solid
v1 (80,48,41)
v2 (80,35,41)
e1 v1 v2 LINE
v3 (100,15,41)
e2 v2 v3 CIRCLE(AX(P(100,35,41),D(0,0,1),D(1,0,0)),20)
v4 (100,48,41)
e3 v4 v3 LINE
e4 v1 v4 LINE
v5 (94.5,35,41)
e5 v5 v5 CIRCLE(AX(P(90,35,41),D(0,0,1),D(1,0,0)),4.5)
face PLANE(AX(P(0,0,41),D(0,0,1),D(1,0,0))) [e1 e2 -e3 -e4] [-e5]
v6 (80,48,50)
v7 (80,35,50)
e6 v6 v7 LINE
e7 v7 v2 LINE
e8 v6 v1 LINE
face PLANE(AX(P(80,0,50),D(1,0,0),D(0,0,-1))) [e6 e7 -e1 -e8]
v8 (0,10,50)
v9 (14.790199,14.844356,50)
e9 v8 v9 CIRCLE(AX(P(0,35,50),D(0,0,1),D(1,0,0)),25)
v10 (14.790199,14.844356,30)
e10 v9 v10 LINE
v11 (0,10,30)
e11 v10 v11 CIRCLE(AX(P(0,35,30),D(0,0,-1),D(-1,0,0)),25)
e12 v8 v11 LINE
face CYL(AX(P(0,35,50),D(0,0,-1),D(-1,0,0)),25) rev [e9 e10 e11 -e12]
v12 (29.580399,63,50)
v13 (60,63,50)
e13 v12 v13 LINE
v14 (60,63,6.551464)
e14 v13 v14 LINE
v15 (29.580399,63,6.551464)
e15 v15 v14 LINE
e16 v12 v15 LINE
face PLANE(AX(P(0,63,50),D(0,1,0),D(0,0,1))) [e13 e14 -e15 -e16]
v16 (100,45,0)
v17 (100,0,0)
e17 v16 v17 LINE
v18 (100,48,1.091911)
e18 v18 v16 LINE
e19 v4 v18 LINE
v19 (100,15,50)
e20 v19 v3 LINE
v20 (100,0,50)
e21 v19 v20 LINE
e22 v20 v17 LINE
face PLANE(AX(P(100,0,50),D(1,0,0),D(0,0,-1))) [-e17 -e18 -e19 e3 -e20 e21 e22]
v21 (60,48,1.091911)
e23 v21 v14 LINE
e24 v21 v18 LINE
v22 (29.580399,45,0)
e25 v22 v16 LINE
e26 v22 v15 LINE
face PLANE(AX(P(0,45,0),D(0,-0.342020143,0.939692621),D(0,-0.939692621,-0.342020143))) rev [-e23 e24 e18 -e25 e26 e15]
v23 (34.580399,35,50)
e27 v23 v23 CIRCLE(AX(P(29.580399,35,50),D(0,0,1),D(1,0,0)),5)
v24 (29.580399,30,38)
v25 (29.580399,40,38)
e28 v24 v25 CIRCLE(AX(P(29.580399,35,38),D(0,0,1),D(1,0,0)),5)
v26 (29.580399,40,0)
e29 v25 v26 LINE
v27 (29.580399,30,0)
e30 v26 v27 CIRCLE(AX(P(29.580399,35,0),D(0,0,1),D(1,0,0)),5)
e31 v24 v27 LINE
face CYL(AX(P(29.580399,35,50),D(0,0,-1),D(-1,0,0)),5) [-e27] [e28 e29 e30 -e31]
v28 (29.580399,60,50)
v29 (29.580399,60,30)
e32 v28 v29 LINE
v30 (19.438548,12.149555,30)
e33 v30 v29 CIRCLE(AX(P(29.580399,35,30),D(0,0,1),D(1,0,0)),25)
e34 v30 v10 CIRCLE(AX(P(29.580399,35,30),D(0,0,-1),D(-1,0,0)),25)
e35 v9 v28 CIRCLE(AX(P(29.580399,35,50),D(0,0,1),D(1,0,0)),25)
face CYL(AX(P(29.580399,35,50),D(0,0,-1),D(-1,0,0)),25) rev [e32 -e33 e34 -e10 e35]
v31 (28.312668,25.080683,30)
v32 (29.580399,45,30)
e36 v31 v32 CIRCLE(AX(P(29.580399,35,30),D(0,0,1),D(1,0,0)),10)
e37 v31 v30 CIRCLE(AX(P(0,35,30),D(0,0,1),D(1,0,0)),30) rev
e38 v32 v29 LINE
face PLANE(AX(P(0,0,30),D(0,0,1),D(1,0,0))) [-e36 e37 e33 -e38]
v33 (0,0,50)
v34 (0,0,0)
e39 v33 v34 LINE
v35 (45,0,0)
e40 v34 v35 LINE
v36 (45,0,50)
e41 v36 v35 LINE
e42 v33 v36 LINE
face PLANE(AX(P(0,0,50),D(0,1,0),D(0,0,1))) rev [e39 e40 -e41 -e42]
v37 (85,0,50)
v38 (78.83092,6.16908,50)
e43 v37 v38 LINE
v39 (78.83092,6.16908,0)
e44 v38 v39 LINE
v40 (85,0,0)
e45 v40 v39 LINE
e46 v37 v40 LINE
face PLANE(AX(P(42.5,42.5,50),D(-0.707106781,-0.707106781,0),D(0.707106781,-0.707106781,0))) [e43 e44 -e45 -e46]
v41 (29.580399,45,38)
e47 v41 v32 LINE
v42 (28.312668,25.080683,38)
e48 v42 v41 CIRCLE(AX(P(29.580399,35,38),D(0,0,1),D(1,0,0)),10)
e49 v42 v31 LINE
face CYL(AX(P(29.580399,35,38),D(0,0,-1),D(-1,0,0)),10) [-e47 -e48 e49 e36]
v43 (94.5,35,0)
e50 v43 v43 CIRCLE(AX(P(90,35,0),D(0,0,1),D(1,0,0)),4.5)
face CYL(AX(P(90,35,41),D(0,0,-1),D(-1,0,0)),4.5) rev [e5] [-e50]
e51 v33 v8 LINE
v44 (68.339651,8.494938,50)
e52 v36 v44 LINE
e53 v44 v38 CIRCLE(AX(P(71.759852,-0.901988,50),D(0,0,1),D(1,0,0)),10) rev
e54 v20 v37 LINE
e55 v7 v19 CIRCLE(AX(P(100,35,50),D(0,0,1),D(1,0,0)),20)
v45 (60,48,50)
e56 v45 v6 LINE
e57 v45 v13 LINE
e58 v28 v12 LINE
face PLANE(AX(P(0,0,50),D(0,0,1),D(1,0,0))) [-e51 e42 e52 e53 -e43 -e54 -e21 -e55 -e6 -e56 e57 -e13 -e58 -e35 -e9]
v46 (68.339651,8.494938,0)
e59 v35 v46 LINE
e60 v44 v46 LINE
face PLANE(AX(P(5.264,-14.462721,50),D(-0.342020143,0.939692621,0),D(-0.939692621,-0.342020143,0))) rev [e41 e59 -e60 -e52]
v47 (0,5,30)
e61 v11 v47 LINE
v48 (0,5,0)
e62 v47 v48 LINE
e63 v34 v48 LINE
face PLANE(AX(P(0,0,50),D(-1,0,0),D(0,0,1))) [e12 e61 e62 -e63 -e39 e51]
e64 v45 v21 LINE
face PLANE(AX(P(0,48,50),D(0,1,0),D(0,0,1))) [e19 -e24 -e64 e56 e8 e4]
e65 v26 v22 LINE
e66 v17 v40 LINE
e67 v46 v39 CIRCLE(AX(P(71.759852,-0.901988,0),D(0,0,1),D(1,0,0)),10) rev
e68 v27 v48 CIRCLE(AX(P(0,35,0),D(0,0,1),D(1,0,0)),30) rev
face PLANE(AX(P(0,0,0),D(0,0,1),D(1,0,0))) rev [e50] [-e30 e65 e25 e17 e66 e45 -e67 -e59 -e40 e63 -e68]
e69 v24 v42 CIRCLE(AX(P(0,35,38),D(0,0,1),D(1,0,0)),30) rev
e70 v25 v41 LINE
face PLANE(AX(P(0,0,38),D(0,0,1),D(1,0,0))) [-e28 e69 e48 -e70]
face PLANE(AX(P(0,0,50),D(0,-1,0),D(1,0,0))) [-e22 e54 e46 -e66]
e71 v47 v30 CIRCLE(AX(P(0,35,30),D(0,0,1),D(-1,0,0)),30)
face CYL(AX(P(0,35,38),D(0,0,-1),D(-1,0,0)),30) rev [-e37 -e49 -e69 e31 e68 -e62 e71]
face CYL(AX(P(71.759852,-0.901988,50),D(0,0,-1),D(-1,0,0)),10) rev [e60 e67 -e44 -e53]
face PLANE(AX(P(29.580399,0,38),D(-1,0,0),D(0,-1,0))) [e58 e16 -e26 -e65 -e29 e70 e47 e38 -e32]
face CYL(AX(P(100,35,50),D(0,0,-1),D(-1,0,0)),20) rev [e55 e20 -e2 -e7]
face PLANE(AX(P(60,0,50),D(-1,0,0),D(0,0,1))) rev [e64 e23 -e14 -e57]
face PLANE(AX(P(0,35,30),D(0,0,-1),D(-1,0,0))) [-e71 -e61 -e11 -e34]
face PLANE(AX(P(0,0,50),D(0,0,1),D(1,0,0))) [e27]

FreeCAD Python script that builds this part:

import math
import FreeCAD as App
import Part
import Sketcher
Q = App.Units.Quantity


def add_polygon(sketch, points):
    """Adds a closed chain of lines whose ends are joined by coincident constraints."""
    first, n = sketch.GeometryCount, len(points)
    for a, b in zip(points, points[1:] + points[:1]):
        sketch.addGeometry(Part.LineSegment(App.Vector(*a, 0), App.Vector(*b, 0)), False)
    for i in range(n):
        sketch.addConstraint(Sketcher.Constraint("Coincident", first + i, 2, first + (i + 1) % n, 1))

doc = App.newDocument("Part")
body = doc.addObject("PartDesign::Body", "Body")

# Sketch on XY plane
sketch1 = body.newObject("Sketcher::SketchObject", "Sketch")
sketch1.AttachmentSupport = (doc.getObject("XY_Plane"), [""])
sketch1.MapMode = "FlatFace"
sketch1.addGeometry([
    Part.LineSegment(App.Vector(80, 48, 0), App.Vector(60, 48, 0)),  # 0
    Part.LineSegment(App.Vector(60, 48, 0), App.Vector(60, 63, 0)),  # 1
    Part.LineSegment(App.Vector(60, 63, 0), App.Vector(29.6, 63, 0)),  # 2
    Part.LineSegment(App.Vector(29.6, 63, 0), App.Vector(29.6, 60, 0)),  # 3
    Part.ArcOfCircle(Part.Circle(App.Vector(29.6, 35, 0), App.Vector(0, 0, 1), 25), math.radians(-114), math.radians(90)),  # 4
    Part.ArcOfCircle(Part.Circle(App.Vector(29.6, 35, 0), App.Vector(0, 0, 1), 25), math.radians(-126.27), math.radians(-113.93)),  # 5
    Part.ArcOfCircle(Part.Circle(App.Vector(0, 35, 0), App.Vector(0, 0, 1), 25), math.radians(-90), math.radians(-54)),  # 6
    Part.LineSegment(App.Vector(0, 10, 0), App.Vector(0, 0, 0)),  # 7
    Part.LineSegment(App.Vector(0, 0, 0), App.Vector(45, 0, 0)),  # 8
    Part.LineSegment(App.Vector(45, 0, 0), App.Vector(68.3, 8.5, 0)),  # 9
    Part.ArcOfCircle(Part.Circle(App.Vector(71.8, -0.9, 0), App.Vector(0, 0, 1), 10), math.radians(45), math.radians(110)),  # 10
    Part.LineSegment(App.Vector(78.8, 6.2, 0), App.Vector(85, 0, 0)),  # 11
    Part.LineSegment(App.Vector(85, 0, 0), App.Vector(100, 0, 0)),  # 12
    Part.LineSegment(App.Vector(100, 0, 0), App.Vector(100, 15, 0)),  # 13
    Part.ArcOfCircle(Part.Circle(App.Vector(100, 35, 0), App.Vector(0, 0, 1), 20), math.radians(180), math.radians(270)),  # 14
    Part.LineSegment(App.Vector(80, 35, 0), App.Vector(80, 48, 0)),  # 15
], False)
sketch1.addConstraint([
    Sketcher.Constraint("Coincident", 0, 2, 1, 1),
    Sketcher.Constraint("Coincident", 1, 2, 2, 1),
    Sketcher.Constraint("Coincident", 2, 2, 3, 1),
    Sketcher.Constraint("Coincident", 3, 2, 4, 2),
    Sketcher.Constraint("Tangent", 4, 1, 5, 2),
    Sketcher.Constraint("Coincident", 5, 1, 6, 2),
    Sketcher.Constraint("Coincident", 6, 1, 7, 1),
    Sketcher.Constraint("Coincident", 7, 2, 8, 1),
    Sketcher.Constraint("Coincident", 8, 2, 9, 1),
    Sketcher.Constraint("Tangent", 9, 2, 10, 2),
    Sketcher.Constraint("Tangent", 10, 1, 11, 1),
    Sketcher.Constraint("Coincident", 11, 2, 12, 1),
    Sketcher.Constraint("Coincident", 12, 2, 13, 1),
    Sketcher.Constraint("Coincident", 13, 2, 14, 2),
    Sketcher.Constraint("Tangent", 14, 1, 15, 1),
    Sketcher.Constraint("Coincident", 15, 2, 0, 1),
    Sketcher.Constraint("Horizontal", 0),
    Sketcher.Constraint("Vertical", 1),
    Sketcher.Constraint("Horizontal", 2),
    Sketcher.Constraint("Vertical", 3),
    Sketcher.Constraint("Vertical", 7),
    Sketcher.Constraint("Horizontal", 8),
    Sketcher.Constraint("Horizontal", 12),
    Sketcher.Constraint("Vertical", 13),
    Sketcher.Constraint("Vertical", 15),
    Sketcher.Constraint("Coincident", 7, 2, -1, 1),
    Sketcher.Constraint("Equal", 4, 5),
    Sketcher.Constraint("Equal", 5, 6),
    Sketcher.Constraint("PointOnObject", 6, 3, -2),
    Sketcher.Constraint("PointOnObject", 11, 2, -1),
    Sketcher.Constraint("Horizontal", 5, 3, 6, 3),
    Sketcher.Constraint("Horizontal", 6, 3, 14, 3),
    Sketcher.Constraint("Vertical", 5, 3, 2, 2),
    Sketcher.Constraint("Vertical", 14, 3, 12, 2),
    Sketcher.Constraint("Equal", 12, 1),
    Sketcher.Constraint("Equal", 1, 13),
    Sketcher.Constraint("Radius", 4, 25.0),
    Sketcher.Constraint("Radius", 10, 10.0),
    Sketcher.Constraint("Radius", 14, 20.0),
    Sketcher.Constraint("DistanceX", 0, 2, 0, 1, 20.0),
    Sketcher.Constraint("DistanceX", 8, 1, 8, 2, 45.0),
    Sketcher.Constraint("DistanceX", 12, 1, 12, 2, 15.0),
    Sketcher.Constraint("DistanceY", 3, 2, 3, 1, 3.0),
    Sketcher.Constraint("Angle", 9, Q("20 deg")),
    Sketcher.Constraint("Angle", 11, Q("-45 deg")),
    Sketcher.Constraint("DistanceX", -1, 1, 14, 3, 100.0),
    Sketcher.Constraint("DistanceX", 2, 2, 2, 1, 30.419601),
    Sketcher.Constraint("DistanceY", 4, 1, 5, 1, 2.694801),
])
pad1 = body.newObject("PartDesign::Pad", "Pad")
pad1.Profile = sketch1
pad1.Length = 50

# Sketch on XY plane
sketch2 = body.newObject("Sketcher::SketchObject", "Sketch001")
sketch2.AttachmentSupport = (doc.getObject("XY_Plane"), [""])
sketch2.MapMode = "FlatFace"
sketch2.addGeometry([
    Part.LineSegment(App.Vector(100, 48, 0), App.Vector(80, 48, 0)),  # 0
    Part.LineSegment(App.Vector(80, 48, 0), App.Vector(80, 35, 0)),  # 1
    Part.ArcOfCircle(Part.Circle(App.Vector(100, 35, 0), App.Vector(0, 0, 1), 20), math.radians(180), math.radians(270)),  # 2
    Part.LineSegment(App.Vector(100, 15, 0), App.Vector(100, 48, 0)),  # 3
    Part.Circle(App.Vector(90, 35, 0), App.Vector(0, 0, 1), 4.5),  # 4
], False)
sketch2.addConstraint([
    Sketcher.Constraint("Coincident", 0, 2, 1, 1),
    Sketcher.Constraint("Tangent", 1, 2, 2, 1),
    Sketcher.Constraint("Coincident", 2, 2, 3, 1),
    Sketcher.Constraint("Coincident", 3, 2, 0, 1),
    Sketcher.Constraint("Horizontal", 0),
    Sketcher.Constraint("Vertical", 1),
    Sketcher.Constraint("Vertical", 3),
    Sketcher.Constraint("Horizontal", 2, 3, 4, 3),
    Sketcher.Constraint("Diameter", 4, 9.0),
    Sketcher.Constraint("Radius", 2, 20.0),
    Sketcher.Constraint("DistanceX", 0, 2, 0, 1, 20.0),
    Sketcher.Constraint("DistanceY", 1, 2, 1, 1, 13.0),
    Sketcher.Constraint("DistanceX", -1, 1, 2, 3, 100.0),
    Sketcher.Constraint("DistanceY", -1, 1, 2, 3, 35.0),
    Sketcher.Constraint("DistanceX", -1, 1, 4, 3, 90.0),
])
pad2 = body.newObject("PartDesign::Pad", "Pad001")
pad2.Profile = sketch2
pad2.Length = 41

# Sketch on XY plane
sketch3 = body.newObject("Sketcher::SketchObject", "Sketch002")
sketch3.AttachmentSupport = (doc.getObject("XY_Plane"), [""])
sketch3.MapMode = "FlatFace"
sketch3.addGeometry([
    Part.ArcOfCircle(Part.Circle(App.Vector(30, 35, 0), App.Vector(0, 0, 1), 25), math.radians(-114), math.radians(90)),
    Part.LineSegment(App.Vector(30, 60, 0), App.Vector(30, 45, 0)),
    Part.ArcOfCircle(Part.Circle(App.Vector(30, 35, 0), App.Vector(0, 0, 1), 10), math.radians(-97), math.radians(90)),
    Part.ArcOfCircle(Part.Circle(App.Vector(0, 35, 0), App.Vector(0, 0, 1), 30), math.radians(-50), math.radians(-19)),
], False)
sketch3.addConstraint([
    Sketcher.Constraint("Coincident", 0, 2, 1, 1),
    Sketcher.Constraint("Coincident", 1, 2, 2, 2),
    Sketcher.Constraint("Coincident", 2, 1, 3, 2),
    Sketcher.Constraint("Coincident", 3, 1, 0, 1),
    Sketcher.Constraint("Vertical", 1),
    Sketcher.Constraint("Coincident", 2, 3, 0, 3),
    Sketcher.Constraint("PointOnObject", 3, 3, -2),
    Sketcher.Constraint("Horizontal", 2, 3, 3, 3),
    Sketcher.Constraint("Vertical", 2, 3, 0, 2),
    Sketcher.Constraint("Radius", 0, 25.0),
    Sketcher.Constraint("Radius", 2, 10.0),
    Sketcher.Constraint("Radius", 3, 30.0),
    Sketcher.Constraint("DistanceY", -1, 1, 0, 3, 35.0),
    Sketcher.Constraint("DistanceX", -1, 1, 0, 3, 29.580399),
])
pad3 = body.newObject("PartDesign::Pad", "Pad002")
pad3.Profile = sketch3
pad3.Length = 30
body2 = doc.addObject("PartDesign::Body", "Body001")

# Sketch on XY plane
sketch4 = body2.newObject("Sketcher::SketchObject", "Sketch003")
sketch4.AttachmentSupport = (doc.getObject("XY_Plane001"), [""])
sketch4.MapMode = "FlatFace"
sketch4.addGeometry(Part.Circle(App.Vector(30, 35, 0), App.Vector(0, 0, 1), 5), False)
sketch4.addConstraint([
    Sketcher.Constraint("Diameter", 0, 10.0),
    Sketcher.Constraint("DistanceY", -1, 1, 0, 3, 35.0),
    Sketcher.Constraint("DistanceX", -1, 1, 0, 3, 29.580399),
])
pad4 = body2.newObject("PartDesign::Pad", "Pad003")
pad4.Profile = sketch4
pad4.Length = 50
body.AllowCompound = True
doc.recompute()

boolean = body.newObject("PartDesign::Boolean", "Boolean")
boolean.Type = "Fuse"
boolean.addObjects([body2])

# Sketch on XY plane
sketch5 = body.newObject("Sketcher::SketchObject", "Sketch004")
sketch5.AttachmentSupport = (doc.getObject("XY_Plane"), [""])
sketch5.MapMode = "FlatFace"
sketch5.addGeometry([
    Part.ArcOfCircle(Part.Circle(App.Vector(30, 35, 0), App.Vector(0, 0, 1), 10), math.radians(-97), math.radians(90)),  # 0
    Part.LineSegment(App.Vector(30, 45, 0), App.Vector(30, 40, 0)),  # 1
    Part.ArcOfCircle(Part.Circle(App.Vector(30, 35, 0), App.Vector(0, 0, 1), 5), math.radians(0), math.radians(90)),  # 2
    Part.ArcOfCircle(Part.Circle(App.Vector(30, 35, 0), App.Vector(0, 0, 1), 5), math.radians(-90), math.radians(0)),  # 3
    Part.ArcOfCircle(Part.Circle(App.Vector(0, 35, 0), App.Vector(0, 0, 1), 30), math.radians(-19.31), math.radians(-9.59)),  # 4
], False)
sketch5.addConstraint([
    Sketcher.Constraint("Coincident", 0, 2, 1, 1),
    Sketcher.Constraint("Coincident", 1, 2, 2, 2),
    Sketcher.Constraint("Tangent", 2, 1, 3, 2),
    Sketcher.Constraint("Coincident", 3, 1, 4, 2),
    Sketcher.Constraint("Coincident", 4, 1, 0, 1),
    Sketcher.Constraint("Vertical", 1),
    Sketcher.Constraint("Coincident", 2, 3, 0, 3),
    Sketcher.Constraint("Equal", 2, 3),
    Sketcher.Constraint("PointOnObject", 4, 3, -2),
    Sketcher.Constraint("Horizontal", 3, 3, 4, 3),
    Sketcher.Constraint("Horizontal", 4, 3, 2, 1),
    Sketcher.Constraint("Vertical", 3, 3, 0, 2),
    Sketcher.Constraint("Vertical", 1, 2, 3, 1),
    Sketcher.Constraint("Radius", 0, 10.0),
    Sketcher.Constraint("Radius", 2, 5.0),
    Sketcher.Constraint("Radius", 4, 30.0),
    Sketcher.Constraint("DistanceY", -1, 1, 0, 3, 35.0),
])
pad5 = body.newObject("PartDesign::Pad", "Pad004")
pad5.Profile = sketch5
pad5.Length = 38

# Sketch on XY plane
sketch6 = body.newObject("Sketcher::SketchObject", "Sketch005")
sketch6.AttachmentSupport = (doc.getObject("XY_Plane"), [""])
sketch6.MapMode = "FlatFace"
sketch6.addGeometry([
    Part.LineSegment(App.Vector(25, 35, 0), App.Vector(0, 35, 0)),
    Part.LineSegment(App.Vector(0, 35, 0), App.Vector(0, 5, 0)),
    Part.ArcOfCircle(Part.Circle(App.Vector(0, 35, 0), App.Vector(0, 0, 1), 30), math.radians(-90), math.radians(-10)),
    Part.ArcOfCircle(Part.Circle(App.Vector(30, 35, 0), App.Vector(0, 0, 1), 5), math.radians(-180), math.radians(-90)),
], False)
sketch6.addConstraint([
    Sketcher.Constraint("Coincident", 0, 2, 1, 1),
    Sketcher.Constraint("Coincident", 1, 2, 2, 1),
    Sketcher.Constraint("Coincident", 2, 2, 3, 2),
    Sketcher.Constraint("Coincident", 3, 1, 0, 1),
    Sketcher.Constraint("Horizontal", 0),
    Sketcher.Constraint("Vertical", 1),
    Sketcher.Constraint("Coincident", 0, 2, 2, 3),
    Sketcher.Constraint("PointOnObject", 2, 3, -2),
    Sketcher.Constraint("Horizontal", 2, 3, 3, 3),
    Sketcher.Constraint("Vertical", 3, 3, 2, 2),
    Sketcher.Constraint("Radius", 2, 30.0),
    Sketcher.Constraint("Radius", 3, 5.0),
    Sketcher.Constraint("DistanceY", -1, 1, 2, 3, 35.0),
])
pocket1 = body.newObject("PartDesign::Pocket", "Pocket")
pocket1.Profile = sketch6
pocket1.Length = 30
pocket1.Reversed = True

# Sketch on YZ plane
sketch7 = body.newObject("Sketcher::SketchObject", "Sketch006")
sketch7.AttachmentSupport = (doc.getObject("YZ_Plane"), [""])
sketch7.MapMode = "FlatFace"
sketch7.AttachmentOffset = App.Placement(App.Vector(0, 0, 60), App.Rotation())
add_polygon(sketch7, [(63, 7), (45, 0), (63, 0)])  # lines 0-2
sketch7.addConstraint([
    Sketcher.Constraint("Horizontal", 1),
    Sketcher.Constraint("Vertical", 2),
    Sketcher.Constraint("PointOnObject", 0, 2, -1),
    Sketcher.Constraint("DistanceX", 1, 1, 1, 2, 18.0),
    Sketcher.Constraint("Angle", 0, Q("-160 deg")),
    Sketcher.Constraint("DistanceX", -1, 1, 0, 2, 45.0),
])
pocket2 = body.newObject("PartDesign::Pocket", "Pocket001")
pocket2.Profile = sketch7
pocket2.Type = "ThroughAll"
pocket2.Midplane = True

doc.recompute()
